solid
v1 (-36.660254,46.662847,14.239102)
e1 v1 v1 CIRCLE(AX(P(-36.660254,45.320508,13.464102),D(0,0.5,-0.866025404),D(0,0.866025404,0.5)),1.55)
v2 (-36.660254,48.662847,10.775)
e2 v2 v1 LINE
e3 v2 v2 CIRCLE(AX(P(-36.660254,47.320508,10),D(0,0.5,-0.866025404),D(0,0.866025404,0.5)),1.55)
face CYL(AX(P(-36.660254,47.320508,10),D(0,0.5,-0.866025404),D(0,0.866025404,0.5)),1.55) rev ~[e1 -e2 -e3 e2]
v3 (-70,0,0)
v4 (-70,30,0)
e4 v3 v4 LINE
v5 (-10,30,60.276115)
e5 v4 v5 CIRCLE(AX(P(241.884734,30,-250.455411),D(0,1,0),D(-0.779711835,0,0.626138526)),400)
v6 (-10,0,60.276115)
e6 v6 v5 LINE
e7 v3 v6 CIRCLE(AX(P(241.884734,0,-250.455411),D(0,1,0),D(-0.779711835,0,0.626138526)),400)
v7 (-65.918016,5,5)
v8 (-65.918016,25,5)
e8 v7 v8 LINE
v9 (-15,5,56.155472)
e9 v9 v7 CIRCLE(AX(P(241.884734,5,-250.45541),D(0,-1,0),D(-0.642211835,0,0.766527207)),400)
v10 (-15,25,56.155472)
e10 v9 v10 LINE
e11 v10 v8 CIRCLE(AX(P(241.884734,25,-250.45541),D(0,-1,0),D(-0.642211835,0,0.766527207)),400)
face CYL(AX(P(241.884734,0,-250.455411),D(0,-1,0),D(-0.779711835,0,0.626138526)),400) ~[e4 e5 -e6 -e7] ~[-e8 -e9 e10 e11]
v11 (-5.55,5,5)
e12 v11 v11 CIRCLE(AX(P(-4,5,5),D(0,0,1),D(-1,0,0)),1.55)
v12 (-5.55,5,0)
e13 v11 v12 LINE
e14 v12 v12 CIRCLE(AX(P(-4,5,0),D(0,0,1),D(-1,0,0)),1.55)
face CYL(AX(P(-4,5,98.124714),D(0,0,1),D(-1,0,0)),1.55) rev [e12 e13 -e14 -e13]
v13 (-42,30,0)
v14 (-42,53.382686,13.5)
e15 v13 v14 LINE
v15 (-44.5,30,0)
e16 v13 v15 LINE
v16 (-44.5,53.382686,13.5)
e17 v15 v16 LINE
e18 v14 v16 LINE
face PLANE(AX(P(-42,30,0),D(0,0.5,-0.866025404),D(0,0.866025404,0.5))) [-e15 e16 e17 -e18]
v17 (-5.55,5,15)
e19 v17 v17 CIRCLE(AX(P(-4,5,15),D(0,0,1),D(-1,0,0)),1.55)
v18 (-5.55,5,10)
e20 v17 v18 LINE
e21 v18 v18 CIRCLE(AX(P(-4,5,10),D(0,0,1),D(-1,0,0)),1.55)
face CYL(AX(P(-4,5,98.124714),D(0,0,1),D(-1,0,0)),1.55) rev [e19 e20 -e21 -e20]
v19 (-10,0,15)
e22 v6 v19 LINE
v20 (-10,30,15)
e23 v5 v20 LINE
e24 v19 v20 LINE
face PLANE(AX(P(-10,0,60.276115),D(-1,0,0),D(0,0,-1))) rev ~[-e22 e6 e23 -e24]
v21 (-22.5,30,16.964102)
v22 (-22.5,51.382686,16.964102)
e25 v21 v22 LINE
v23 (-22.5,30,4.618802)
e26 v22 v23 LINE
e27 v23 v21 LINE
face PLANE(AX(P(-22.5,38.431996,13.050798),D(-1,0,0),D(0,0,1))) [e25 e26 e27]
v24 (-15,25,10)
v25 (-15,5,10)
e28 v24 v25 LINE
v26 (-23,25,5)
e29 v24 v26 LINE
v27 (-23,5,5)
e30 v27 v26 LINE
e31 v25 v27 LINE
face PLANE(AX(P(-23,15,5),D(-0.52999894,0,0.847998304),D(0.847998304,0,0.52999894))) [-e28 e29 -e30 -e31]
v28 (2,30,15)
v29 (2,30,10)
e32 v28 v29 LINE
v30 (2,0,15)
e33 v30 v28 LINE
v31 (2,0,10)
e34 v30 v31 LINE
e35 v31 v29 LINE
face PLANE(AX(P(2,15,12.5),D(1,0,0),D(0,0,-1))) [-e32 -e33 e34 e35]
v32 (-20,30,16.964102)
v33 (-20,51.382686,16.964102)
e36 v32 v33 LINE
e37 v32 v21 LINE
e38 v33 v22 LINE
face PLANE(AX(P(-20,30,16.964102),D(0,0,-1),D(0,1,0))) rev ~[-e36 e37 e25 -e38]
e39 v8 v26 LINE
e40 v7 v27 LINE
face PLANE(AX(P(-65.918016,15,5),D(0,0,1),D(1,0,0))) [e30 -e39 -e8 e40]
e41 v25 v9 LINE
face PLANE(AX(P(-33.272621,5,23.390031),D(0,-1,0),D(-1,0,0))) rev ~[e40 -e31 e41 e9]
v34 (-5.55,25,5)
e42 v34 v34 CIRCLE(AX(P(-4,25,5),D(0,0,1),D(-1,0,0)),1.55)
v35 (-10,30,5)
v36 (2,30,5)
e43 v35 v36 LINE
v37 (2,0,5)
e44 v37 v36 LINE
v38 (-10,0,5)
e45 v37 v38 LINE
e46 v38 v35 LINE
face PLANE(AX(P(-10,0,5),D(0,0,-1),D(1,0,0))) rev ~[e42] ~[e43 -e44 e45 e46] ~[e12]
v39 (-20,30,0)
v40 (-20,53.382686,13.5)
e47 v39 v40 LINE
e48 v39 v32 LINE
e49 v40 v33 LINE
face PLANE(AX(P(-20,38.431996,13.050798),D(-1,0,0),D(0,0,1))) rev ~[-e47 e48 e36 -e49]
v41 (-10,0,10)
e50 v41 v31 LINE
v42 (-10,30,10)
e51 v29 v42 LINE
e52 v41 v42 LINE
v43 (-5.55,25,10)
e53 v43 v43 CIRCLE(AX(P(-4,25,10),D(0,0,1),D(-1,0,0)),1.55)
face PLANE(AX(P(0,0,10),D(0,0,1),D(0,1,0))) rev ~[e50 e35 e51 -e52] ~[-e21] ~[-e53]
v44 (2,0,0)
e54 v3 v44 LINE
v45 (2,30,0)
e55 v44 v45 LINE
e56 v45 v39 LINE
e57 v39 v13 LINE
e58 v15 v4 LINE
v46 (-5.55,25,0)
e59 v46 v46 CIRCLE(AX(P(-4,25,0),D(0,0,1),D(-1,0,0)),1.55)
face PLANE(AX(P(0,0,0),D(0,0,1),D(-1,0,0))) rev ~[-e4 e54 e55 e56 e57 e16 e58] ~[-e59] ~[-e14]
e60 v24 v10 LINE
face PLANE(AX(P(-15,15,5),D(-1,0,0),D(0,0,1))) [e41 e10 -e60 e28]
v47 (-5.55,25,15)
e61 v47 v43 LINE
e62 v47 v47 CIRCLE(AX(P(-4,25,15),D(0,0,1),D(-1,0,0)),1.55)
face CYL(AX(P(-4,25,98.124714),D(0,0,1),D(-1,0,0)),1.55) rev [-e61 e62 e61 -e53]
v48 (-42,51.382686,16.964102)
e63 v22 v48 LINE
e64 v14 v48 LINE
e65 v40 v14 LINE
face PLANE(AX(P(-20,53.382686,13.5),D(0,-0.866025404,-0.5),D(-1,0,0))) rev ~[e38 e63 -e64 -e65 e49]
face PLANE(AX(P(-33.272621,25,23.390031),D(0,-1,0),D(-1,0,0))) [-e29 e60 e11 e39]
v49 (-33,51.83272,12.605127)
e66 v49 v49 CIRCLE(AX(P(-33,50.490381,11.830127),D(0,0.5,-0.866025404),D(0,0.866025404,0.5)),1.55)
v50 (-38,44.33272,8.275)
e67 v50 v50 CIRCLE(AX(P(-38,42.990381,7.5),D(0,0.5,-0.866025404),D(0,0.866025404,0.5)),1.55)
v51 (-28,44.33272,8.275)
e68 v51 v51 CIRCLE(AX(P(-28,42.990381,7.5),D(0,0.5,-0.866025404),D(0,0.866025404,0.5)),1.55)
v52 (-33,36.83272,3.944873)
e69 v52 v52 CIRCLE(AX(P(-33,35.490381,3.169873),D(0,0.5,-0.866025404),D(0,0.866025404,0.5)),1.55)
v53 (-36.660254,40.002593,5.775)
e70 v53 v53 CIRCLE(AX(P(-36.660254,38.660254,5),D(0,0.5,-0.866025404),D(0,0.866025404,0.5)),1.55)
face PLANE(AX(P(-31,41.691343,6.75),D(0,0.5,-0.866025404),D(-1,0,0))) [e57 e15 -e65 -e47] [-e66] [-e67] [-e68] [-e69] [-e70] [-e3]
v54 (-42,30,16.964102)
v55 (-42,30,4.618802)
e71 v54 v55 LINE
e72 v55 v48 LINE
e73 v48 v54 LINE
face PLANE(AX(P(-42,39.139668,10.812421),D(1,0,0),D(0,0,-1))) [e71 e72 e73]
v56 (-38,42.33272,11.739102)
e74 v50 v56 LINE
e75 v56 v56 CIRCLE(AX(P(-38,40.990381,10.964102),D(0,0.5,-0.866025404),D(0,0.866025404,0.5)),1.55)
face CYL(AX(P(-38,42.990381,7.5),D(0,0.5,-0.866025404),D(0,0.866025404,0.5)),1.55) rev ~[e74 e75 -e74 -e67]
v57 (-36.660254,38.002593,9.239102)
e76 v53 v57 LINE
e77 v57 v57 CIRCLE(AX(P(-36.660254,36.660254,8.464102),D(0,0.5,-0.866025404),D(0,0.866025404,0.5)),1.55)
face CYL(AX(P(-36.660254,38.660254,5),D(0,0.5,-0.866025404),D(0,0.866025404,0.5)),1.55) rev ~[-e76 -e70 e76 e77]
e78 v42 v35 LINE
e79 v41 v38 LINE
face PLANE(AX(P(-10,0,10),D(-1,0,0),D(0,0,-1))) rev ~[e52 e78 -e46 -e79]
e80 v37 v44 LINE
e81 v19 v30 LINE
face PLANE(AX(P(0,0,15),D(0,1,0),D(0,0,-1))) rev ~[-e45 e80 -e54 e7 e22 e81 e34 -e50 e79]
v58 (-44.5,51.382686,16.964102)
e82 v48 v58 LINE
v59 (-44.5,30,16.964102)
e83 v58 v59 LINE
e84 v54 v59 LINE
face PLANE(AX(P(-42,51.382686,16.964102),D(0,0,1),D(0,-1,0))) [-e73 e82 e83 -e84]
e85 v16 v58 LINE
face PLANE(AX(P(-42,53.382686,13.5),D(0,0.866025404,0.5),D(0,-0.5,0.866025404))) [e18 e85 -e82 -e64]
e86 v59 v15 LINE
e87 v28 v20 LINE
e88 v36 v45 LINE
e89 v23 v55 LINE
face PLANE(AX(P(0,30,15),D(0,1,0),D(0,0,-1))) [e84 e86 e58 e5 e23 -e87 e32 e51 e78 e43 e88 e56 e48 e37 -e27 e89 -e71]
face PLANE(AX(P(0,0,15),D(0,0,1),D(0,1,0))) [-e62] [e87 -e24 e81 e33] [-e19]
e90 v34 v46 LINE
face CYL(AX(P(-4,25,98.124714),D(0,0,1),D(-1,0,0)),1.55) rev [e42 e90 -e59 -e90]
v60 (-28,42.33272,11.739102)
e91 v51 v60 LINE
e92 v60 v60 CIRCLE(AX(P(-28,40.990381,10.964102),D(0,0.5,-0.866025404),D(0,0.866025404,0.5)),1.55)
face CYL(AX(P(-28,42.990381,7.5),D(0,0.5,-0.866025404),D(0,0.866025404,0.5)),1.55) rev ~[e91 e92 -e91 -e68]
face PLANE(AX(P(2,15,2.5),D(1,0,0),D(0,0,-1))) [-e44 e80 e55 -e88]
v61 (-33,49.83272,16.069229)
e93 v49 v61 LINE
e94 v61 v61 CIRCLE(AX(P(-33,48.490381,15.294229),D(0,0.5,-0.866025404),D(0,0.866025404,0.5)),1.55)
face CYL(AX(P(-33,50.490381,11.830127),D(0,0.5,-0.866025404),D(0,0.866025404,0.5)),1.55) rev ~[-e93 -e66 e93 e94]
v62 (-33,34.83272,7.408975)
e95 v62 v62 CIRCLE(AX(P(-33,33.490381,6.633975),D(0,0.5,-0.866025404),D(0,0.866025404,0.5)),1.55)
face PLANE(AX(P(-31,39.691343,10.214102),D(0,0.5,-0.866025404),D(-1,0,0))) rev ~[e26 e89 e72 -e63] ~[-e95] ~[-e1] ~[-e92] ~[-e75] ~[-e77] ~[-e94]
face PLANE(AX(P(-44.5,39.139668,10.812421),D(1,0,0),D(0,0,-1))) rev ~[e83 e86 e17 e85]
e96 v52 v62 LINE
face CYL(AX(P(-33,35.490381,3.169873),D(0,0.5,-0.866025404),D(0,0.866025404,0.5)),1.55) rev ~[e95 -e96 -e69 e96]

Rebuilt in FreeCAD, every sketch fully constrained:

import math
import FreeCAD as App
import Part
import Sketcher
from FreeCAD import Vector
Q = App.Units.Quantity


def add_polygon(sketch, points):
    """Adds a closed chain of lines whose ends are joined by coincident constraints."""
    first, n = sketch.GeometryCount, len(points)
    for a, b in zip(points, points[1:] + points[:1]):
        sketch.addGeometry(Part.LineSegment(App.Vector(*a, 0), App.Vector(*b, 0)), False)
    for i in range(n):
        sketch.addConstraint(Sketcher.Constraint("Coincident", first + i, 2, first + (i + 1) % n, 1))

doc = App.newDocument("Part")
params = doc.addObject("Spreadsheet::Sheet", "Params")
for row, (alias, value) in enumerate([
    ("sketch1_radius", "400 mm"),
    ("sketch1_width", "70 mm"),
    ("sketch1_width2", "10 mm"),
    ("sketch1_height", "5 mm"),
    ("pad1_length", "30 mm"),
    ("sketch2_diameter", "3.1 mm"),
    ("sketch3_radius", "400 mm"),
    ("pocket2_length", "20 mm"),
    ("sketch4_width", "8 mm"),
    ("sketch4_height", "5 mm"),
    ("pad2_length", "25 mm"),
    ("sketch5_width", "30 mm"),
    ("sketch5_height", "5 mm"),
    ("pad3_length", "2 mm"),
    ("sketch6_diameter", "3.1 mm"),
    ("sketch6_width", "22 mm"),
    ("sketch6_height", "27 mm"),
    ("pad4_length", "4 mm"),
    ("pad5_length", "2.5 mm"),
    ("sketch8_length", "27 mm"),
    ("sketch8_length2", "4 mm"),
    ("pad6_length", "2.5 mm"),
], start=1):
    params.set(f"A{row}", alias)
    params.set(f"B{row}", "=" + value)
    params.setAlias(f"B{row}", alias)

body = doc.addObject("PartDesign::Body", "Body")

# Sketch on XZ plane
sketch1 = body.newObject("Sketcher::SketchObject", "Sketch")
sketch1.AttachmentSupport = (doc.getObject("XZ_Plane"), [""])
sketch1.MapMode = "FlatFace"
sketch1.addGeometry([
    Part.LineSegment(Vector(0, 0, 0), Vector(-70, 0, 0)),  # 0
    Part.ArcOfCircle(Part.Circle(Vector(242, -250, 0), Vector(0, 0, 1), 400), math.radians(129.03), math.radians(141.23)),  # 1
    Part.LineSegment(Vector(-10, 60, 0), Vector(-10, 15, 0)),  # 2
    Part.LineSegment(Vector(-10, 15, 0), Vector(0, 15, 0)),  # 3
    Part.LineSegment(Vector(0, 15, 0), Vector(0, 10, 0)),  # 4
    Part.LineSegment(Vector(0, 10, 0), Vector(-10, 10, 0)),  # 5
    Part.LineSegment(Vector(-10, 10, 0), Vector(-10, 5, 0)),  # 6
    Part.LineSegment(Vector(-10, 5, 0), Vector(0, 5, 0)),  # 7
    Part.LineSegment(Vector(0, 5, 0), Vector(0, 0, 0)),  # 8
], False)
sketch1.addConstraint([
    Sketcher.Constraint("Coincident", 0, 2, 1, 2),
    Sketcher.Constraint("Coincident", 1, 1, 2, 1),
    Sketcher.Constraint("Coincident", 2, 2, 3, 1),
    Sketcher.Constraint("Coincident", 3, 2, 4, 1),
    Sketcher.Constraint("Coincident", 4, 2, 5, 1),
    Sketcher.Constraint("Coincident", 5, 2, 6, 1),
    Sketcher.Constraint("Coincident", 6, 2, 7, 1),
    Sketcher.Constraint("Coincident", 7, 2, 8, 1),
    Sketcher.Constraint("Coincident", 8, 2, 0, 1),
    Sketcher.Constraint("Horizontal", 0),
    Sketcher.Constraint("Vertical", 2),
    Sketcher.Constraint("Horizontal", 3),
    Sketcher.Constraint("Vertical", 4),
    Sketcher.Constraint("Horizontal", 5),
    Sketcher.Constraint("Vertical", 6),
    Sketcher.Constraint("Horizontal", 7),
    Sketcher.Constraint("Vertical", 8),
    Sketcher.Constraint("Coincident", 8, 2, -1, 1),
    Sketcher.Constraint("PointOnObject", 3, 2, -2),
    Sketcher.Constraint("Vertical", 2, 2, 5, 2),
    Sketcher.Constraint("Equal", 4, 6),
    Sketcher.Constraint("Equal", 6, 8),
    Sketcher.Constraint("Radius", 1, Q("400 mm")),
    Sketcher.Constraint("DistanceX", 0, 2, 0, 1, Q("70 mm")),
    Sketcher.Constraint("DistanceX", 3, 1, 3, 2, Q("10 mm")),
    Sketcher.Constraint("DistanceY", 4, 2, 4, 1, Q("5 mm")),
    Sketcher.Constraint("DistanceY", 2, 2, 2, 1, Q("45.276115 mm")),
])
sketch1.setExpression("Constraints[22]", "Params.sketch1_radius")
sketch1.setExpression("Constraints[23]", "Params.sketch1_width")
sketch1.setExpression("Constraints[24]", "Params.sketch1_width2")
sketch1.setExpression("Constraints[25]", "Params.sketch1_height")
pad1 = body.newObject("PartDesign::Pad", "Pad")
pad1.Profile = sketch1
pad1.setExpression("Length", "Params.pad1_length")
pad1.Reversed = True

# Sketch on XY plane
sketch2 = body.newObject("Sketcher::SketchObject", "Sketch001")
sketch2.AttachmentSupport = (doc.getObject("XY_Plane"), [""])
sketch2.MapMode = "FlatFace"
sketch2.addGeometry([
    Part.Circle(Vector(-4, 25, 0), Vector(0, 0, 1), 1.6),
    Part.Circle(Vector(-4, 5, 0), Vector(0, 0, 1), 1.6),
], False)
sketch2.addConstraint([
    Sketcher.Constraint("Equal", 0, 1),
    Sketcher.Constraint("Vertical", 0, 3, 1, 3),
    Sketcher.Constraint("Diameter", 0, Q("3.1 mm")),
    Sketcher.Constraint("DistanceX", 0, 3, -1, 1, Q("4 mm")),
    Sketcher.Constraint("DistanceY", -1, 1, 0, 3, Q("25 mm")),
    Sketcher.Constraint("DistanceY", -1, 1, 1, 3, Q("5 mm")),
])
sketch2.setExpression("Constraints[2]", "Params.sketch2_diameter")
pocket1 = body.newObject("PartDesign::Pocket", "Pocket")
pocket1.Profile = sketch2
pocket1.Type = "ThroughAll"
pocket1.Midplane = True

# Sketch on XZ plane
sketch3 = body.newObject("Sketcher::SketchObject", "Sketch002")
sketch3.AttachmentSupport = (doc.getObject("XZ_Plane"), [""])
sketch3.MapMode = "FlatFace"
sketch3.AttachmentOffset = App.Placement(Vector(0, 0, -15), App.Rotation())
sketch3.addGeometry([
    Part.LineSegment(Vector(-15, 5, 0), Vector(-66, 5, 0)),
    Part.ArcOfCircle(Part.Circle(Vector(242, -250, 0), Vector(0, 0, 1), 400), math.radians(129.96), math.radians(140.31)),
    Part.LineSegment(Vector(-15, 56, 0), Vector(-15, 5, 0)),
], False)
sketch3.addConstraint([
    Sketcher.Constraint("Coincident", 0, 2, 1, 2),
    Sketcher.Constraint("Coincident", 1, 1, 2, 1),
    Sketcher.Constraint("Coincident", 2, 2, 0, 1),
    Sketcher.Constraint("Horizontal", 0),
    Sketcher.Constraint("Vertical", 2),
    Sketcher.Constraint("Radius", 1, Q("400 mm")),
    Sketcher.Constraint("DistanceY", -1, 1, 0, 2, Q("5 mm")),
    Sketcher.Constraint("DistanceX", 2, 2, -1, 1, Q("15 mm")),
    Sketcher.Constraint("DistanceX", 0, 2, 0, 1, Q("50.918016 mm")),
    Sketcher.Constraint("DistanceY", 2, 2, 2, 1, Q("51.155472 mm")),
])
sketch3.setExpression("Constraints[5]", "Params.sketch3_radius")
pocket2 = body.newObject("PartDesign::Pocket", "Pocket001")
pocket2.Profile = sketch3
pocket2.setExpression("Length", "Params.pocket2_length")
pocket2.Midplane = True

# Sketch on XZ plane
sketch4 = body.newObject("Sketcher::SketchObject", "Sketch003")
sketch4.AttachmentSupport = (doc.getObject("XZ_Plane"), [""])
sketch4.MapMode = "FlatFace"
sketch4.AttachmentOffset = App.Placement(Vector(0, 0, -15), App.Rotation())
add_polygon(sketch4, [(-15, 5), (-23, 5), (-15, 10)])  # lines 0-2
sketch4.addConstraint([
    Sketcher.Constraint("Horizontal", 0),
    Sketcher.Constraint("Vertical", 2),
    Sketcher.Constraint("DistanceX", 0, 2, 0, 1, Q("8 mm")),
    Sketcher.Constraint("DistanceY", 2, 2, 2, 1, Q("5 mm")),
    Sketcher.Constraint("DistanceX", 0, 2, -1, 1, Q("23 mm")),
    Sketcher.Constraint("DistanceY", -1, 1, 0, 2, Q("5 mm")),
])
sketch4.setExpression("Constraints[5]", "Params.sketch4_width")
sketch4.setExpression("Constraints[6]", "Params.sketch4_height")
pad2 = body.newObject("PartDesign::Pad", "Pad001")
pad2.Profile = sketch4
pad2.setExpression("Length", "Params.pad2_length")
pad2.Midplane = True

# Sketch on YZ plane
sketch5 = body.newObject("Sketcher::SketchObject", "Sketch004")
sketch5.AttachmentSupport = (doc.getObject("YZ_Plane"), [""])
sketch5.MapMode = "FlatFace"
add_polygon(sketch5, [(30, 15), (0, 15), (0, 10), (30, 10)])  # lines 0-3
add_polygon(sketch5, [(30, 5), (0, 5), (0, 0), (30, 0)])  # lines 4-7
sketch5.addConstraint([
    Sketcher.Constraint("Horizontal", 0),
    Sketcher.Constraint("Vertical", 1),
    Sketcher.Constraint("Horizontal", 2),
    Sketcher.Constraint("Vertical", 3),
    Sketcher.Constraint("Horizontal", 4),
    Sketcher.Constraint("Vertical", 5),
    Sketcher.Constraint("Horizontal", 6),
    Sketcher.Constraint("Vertical", 7),
    Sketcher.Constraint("Coincident", 5, 2, -1, 1),
    Sketcher.Constraint("PointOnObject", 0, 2, -2),
    Sketcher.Constraint("Vertical", 3, 2, 6, 2),
    Sketcher.Constraint("Equal", 3, 5),
    Sketcher.Constraint("DistanceX", 0, 2, 0, 1, Q("30 mm")),
    Sketcher.Constraint("DistanceY", 1, 2, 1, 1, Q("5 mm")),
    Sketcher.Constraint("DistanceY", -1, 1, 0, 2, Q("15 mm")),
])
sketch5.setExpression("Constraints[20]", "Params.sketch5_width")
sketch5.setExpression("Constraints[21]", "Params.sketch5_height")
pad3 = body.newObject("PartDesign::Pad", "Pad002")
pad3.Profile = sketch5
pad3.setExpression("Length", "Params.pad3_length")

# Sketch on an angled plane
sketch6 = body.newObject("Sketcher::SketchObject", "Sketch005")
sketch6.Placement = App.Placement(Vector(0, 7.5, -12.990381), App.Rotation(Vector(-1, 0, 0), Vector(0, 0.866025404, 0.5), Vector(0, 0.5, -0.866025404), "ZXY"))
add_polygon(sketch6, [(20, 53), (20, 26), (42, 26), (42, 53)])  # lines 0-3
sketch6.addGeometry(Part.Circle(Vector(33, 32.3, 0), Vector(0, 0, 1), 1.6), False)  # 4
sketch6.addGeometry(Part.Circle(Vector(36.7, 36, 0), Vector(0, 0, 1), 1.6), False)  # 5
sketch6.addGeometry(Part.Circle(Vector(28, 41, 0), Vector(0, 0, 1), 1.6), False)  # 6
sketch6.addGeometry(Part.Circle(Vector(33, 49.6, 0), Vector(0, 0, 1), 1.6), False)  # 7
sketch6.addGeometry(Part.Circle(Vector(38, 41, 0), Vector(0, 0, 1), 1.6), False)  # 8
sketch6.addGeometry(Part.Circle(Vector(36.7, 46, 0), Vector(0, 0, 1), 1.6), False)  # 9
sketch6.addConstraint([
    Sketcher.Constraint("Vertical", 0),
    Sketcher.Constraint("Horizontal", 1),
    Sketcher.Constraint("Vertical", 2),
    Sketcher.Constraint("Horizontal", 3),
    Sketcher.Constraint("Equal", 4, 5),
    Sketcher.Constraint("Equal", 5, 6),
    Sketcher.Constraint("Equal", 6, 7),
    Sketcher.Constraint("Equal", 7, 8),
    Sketcher.Constraint("Equal", 8, 9),
    Sketcher.Constraint("Horizontal", 6, 3, 8, 3),
    Sketcher.Constraint("Vertical", 4, 3, 7, 3),
    Sketcher.Constraint("Vertical", 5, 3, 9, 3),
    Sketcher.Constraint("Diameter", 4, Q("3.1 mm")),
    Sketcher.Constraint("DistanceX", 1, 1, 1, 2, Q("22 mm")),
    Sketcher.Constraint("DistanceY", 0, 2, 0, 1, Q("27 mm")),
    Sketcher.Constraint("DistanceX", -1, 1, 4, 3, Q("33 mm")),
    Sketcher.Constraint("DistanceX", -1, 1, 6, 3, Q("28 mm")),
    Sketcher.Constraint("DistanceX", -1, 1, 8, 3, Q("38 mm")),
    Sketcher.Constraint("DistanceX", -1, 1, 0, 2, Q("20 mm")),
    Sketcher.Constraint("DistanceY", 5, 3, 6, 3, Q("5 mm")),
    Sketcher.Constraint("DistanceY", 8, 3, 9, 3, Q("5 mm")),
    Sketcher.Constraint("DistanceY", 0, 2, 6, 3, Q("15 mm")),
    Sketcher.Constraint("DistanceY", -1, 1, 4, 3, Q("32.320508 mm")),
    Sketcher.Constraint("DistanceY", 4, 3, 7, 3, Q("17.320508 mm")),
    Sketcher.Constraint("DistanceX", -1, 1, 5, 3, Q("36.660254 mm")),
    Sketcher.Constraint("DistanceY", -1, 1, 5, 3, Q("35.980762 mm")),
])
sketch6.setExpression("Constraints[16]", "Params.sketch6_diameter")
sketch6.setExpression("Constraints[17]", "Params.sketch6_width")
sketch6.setExpression("Constraints[18]", "Params.sketch6_height")
pad4 = body.newObject("PartDesign::Pad", "Pad003")
pad4.Profile = sketch6
pad4.setExpression("Length", "Params.pad4_length")
pad4.Reversed = True

# Sketch on YZ plane
sketch7 = body.newObject("Sketcher::SketchObject", "Sketch006")
sketch7.AttachmentSupport = (doc.getObject("YZ_Plane"), [""])
sketch7.MapMode = "FlatFace"
sketch7.AttachmentOffset = App.Placement(Vector(0, 0, -20), App.Rotation())
add_polygon(sketch7, [(30, 5), (51, 17), (30, 17)])  # lines 0-2
sketch7.addConstraint([
    Sketcher.Constraint("Horizontal", 1),
    Sketcher.Constraint("Vertical", 2),
    Sketcher.Constraint("Angle", 0, Q("30 deg")),
    Sketcher.Constraint("DistanceX", -1, 1, 1, 2, Q("30 mm")),
    Sketcher.Constraint("DistanceY", 2, 2, 2, 1, Q("12.345299 mm")),
    Sketcher.Constraint("DistanceY", -1, 1, 0, 2, Q("16.964102 mm")),
])
pad5 = body.newObject("PartDesign::Pad", "Pad004")
pad5.Profile = sketch7
pad5.setExpression("Length", "Params.pad5_length")
pad5.Reversed = True

# Sketch on YZ plane
sketch8 = body.newObject("Sketcher::SketchObject", "Sketch007")
sketch8.AttachmentSupport = (doc.getObject("YZ_Plane"), [""])
sketch8.MapMode = "FlatFace"
sketch8.AttachmentOffset = App.Placement(Vector(0, 0, -42), App.Rotation())
add_polygon(sketch8, [(53.4, 13.5), (30, 0), (30, 17), (51.4, 17)])  # lines 0-3
sketch8.addConstraint([
    Sketcher.Constraint("Vertical", 1),
    Sketcher.Constraint("Horizontal", 2),
    Sketcher.Constraint("PointOnObject", 0, 2, -1),
    Sketcher.Constraint("Perpendicular", 0, 3),
    Sketcher.Constraint("Angle", 0, Q("-150 deg")),
    Sketcher.Constraint("Distance", 0, Q("27 mm")),
    Sketcher.Constraint("Distance", 3, Q("4 mm")),
    Sketcher.Constraint("DistanceX", -1, 1, 0, 2, Q("30 mm")),
])
sketch8.setExpression("Constraints[9]", "Params.sketch8_length")
sketch8.setExpression("Constraints[10]", "Params.sketch8_length2")
pad6 = body.newObject("PartDesign::Pad", "Pad005")
pad6.Profile = sketch8
pad6.setExpression("Length", "Params.pad6_length")
pad6.Reversed = True

doc.recompute()
